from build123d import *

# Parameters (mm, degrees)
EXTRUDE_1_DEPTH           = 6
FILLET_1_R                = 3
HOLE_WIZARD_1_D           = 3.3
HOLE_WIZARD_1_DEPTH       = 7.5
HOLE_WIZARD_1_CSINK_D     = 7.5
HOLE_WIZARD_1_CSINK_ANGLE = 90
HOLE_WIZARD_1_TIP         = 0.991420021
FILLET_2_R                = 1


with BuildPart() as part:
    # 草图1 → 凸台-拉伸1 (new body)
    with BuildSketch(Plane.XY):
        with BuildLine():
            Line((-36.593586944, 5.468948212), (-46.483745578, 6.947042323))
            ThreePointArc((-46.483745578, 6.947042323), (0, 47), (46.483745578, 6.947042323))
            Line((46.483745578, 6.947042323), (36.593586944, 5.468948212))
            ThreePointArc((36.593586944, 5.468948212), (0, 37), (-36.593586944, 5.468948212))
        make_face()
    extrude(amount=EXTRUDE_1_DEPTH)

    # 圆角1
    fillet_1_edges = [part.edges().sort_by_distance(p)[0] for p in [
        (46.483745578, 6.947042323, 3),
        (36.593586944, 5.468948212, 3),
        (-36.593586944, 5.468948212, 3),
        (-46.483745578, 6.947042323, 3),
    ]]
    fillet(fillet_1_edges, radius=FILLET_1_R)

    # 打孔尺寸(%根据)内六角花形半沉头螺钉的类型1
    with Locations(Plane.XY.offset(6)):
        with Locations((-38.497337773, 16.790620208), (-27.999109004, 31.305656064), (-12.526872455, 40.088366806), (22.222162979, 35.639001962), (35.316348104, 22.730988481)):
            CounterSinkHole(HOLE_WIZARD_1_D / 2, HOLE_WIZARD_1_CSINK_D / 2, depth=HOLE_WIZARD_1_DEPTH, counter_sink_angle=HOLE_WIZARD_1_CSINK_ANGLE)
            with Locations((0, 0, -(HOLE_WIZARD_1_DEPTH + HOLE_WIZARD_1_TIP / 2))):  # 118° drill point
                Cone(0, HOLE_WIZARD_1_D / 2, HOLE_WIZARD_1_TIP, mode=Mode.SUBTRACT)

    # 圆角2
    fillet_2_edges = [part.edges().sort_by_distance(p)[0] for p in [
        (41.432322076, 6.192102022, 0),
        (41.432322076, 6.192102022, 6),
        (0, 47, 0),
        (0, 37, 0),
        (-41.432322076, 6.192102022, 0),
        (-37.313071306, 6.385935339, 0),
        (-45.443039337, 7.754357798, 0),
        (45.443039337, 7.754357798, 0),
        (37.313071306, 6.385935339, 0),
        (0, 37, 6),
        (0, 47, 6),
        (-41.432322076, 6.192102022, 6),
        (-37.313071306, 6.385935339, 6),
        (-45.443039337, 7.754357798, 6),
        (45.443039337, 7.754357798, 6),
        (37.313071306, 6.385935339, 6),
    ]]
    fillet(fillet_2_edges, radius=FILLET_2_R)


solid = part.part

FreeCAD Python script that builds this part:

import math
import FreeCAD as App
import Part
import Sketcher
from FreeCAD import Vector
Q = App.Units.Quantity


def edges_at(feature, points):
    """Names of the edges that pass closest to the given points."""
    edges = feature.Shape.Edges
    near = lambda p: min(range(len(edges)), key=lambda i: edges[i].distToShape(Part.Vertex(*p))[0])
    return sorted({f"Edge{near(p) + 1}" for p in points})

doc = App.newDocument("Part")
body = doc.addObject("PartDesign::Body", "Body")

# Sketch on XY plane
sketch1 = body.newObject("Sketcher::SketchObject", "Sketch")
sketch1.AttachmentSupport = (doc.getObject("XY_Plane"), [""])
sketch1.MapMode = "FlatFace"
sketch1.addGeometry([
    Part.LineSegment(Vector(-46, 7, 0), Vector(-37, 5, 0)),
    Part.ArcOfCircle(Part.Circle(Vector(0, 0, 0), Vector(0, 0, 1), 37), math.radians(9), math.radians(171)),
    Part.LineSegment(Vector(37, 5, 0), Vector(46, 7, 0)),
    Part.ArcOfCircle(Part.Circle(Vector(0, 0, 0), Vector(0, 0, 1), 47), math.radians(8), math.radians(172)),
], False)
sketch1.addConstraint([
    Sketcher.Constraint("Coincident", 0, 2, 1, 2),
    Sketcher.Constraint("Coincident", 1, 1, 2, 1),
    Sketcher.Constraint("Coincident", 2, 2, 3, 1),
    Sketcher.Constraint("Coincident", 3, 2, 0, 1),
    Sketcher.Constraint("Coincident", 1, 3, -1, 1),
    Sketcher.Constraint("Coincident", 3, 3, -1, 1),
    Sketcher.Constraint("Horizontal", 0, 2, 1, 1),
    Sketcher.Constraint("Horizontal", 2, 2, 3, 2),
    Sketcher.Constraint("Radius", 1, Q("37 mm")),
    Sketcher.Constraint("Radius", 3, Q("47 mm")),
    Sketcher.Constraint("Angle", 0, Q("-8.5 deg")),
    Sketcher.Constraint("DistanceY", -1, 1, 0, 2, Q("5.468948 mm")),
])
pad1 = body.newObject("PartDesign::Pad", "Pad")
pad1.Profile = sketch1
pad1.Length = 6
doc.recompute()

fillet = body.newObject("PartDesign::Fillet", "Fillet")
fillet.Base = (pad1, edges_at(pad1, [
    (46.484, 6.947, 3),
    (36.594, 5.469, 3),
    (-36.594, 5.469, 3),
    (-46.484, 6.947, 3),
]))
fillet.Radius = 3

# Sketch on XY plane
sketch2 = body.newObject("Sketcher::SketchObject", "Sketch001")
sketch2.AttachmentSupport = (doc.getObject("XY_Plane"), [""])
sketch2.MapMode = "FlatFace"
sketch2.AttachmentOffset = App.Placement(Vector(0, 0, 6), App.Rotation())
sketch2.addGeometry([
    Part.Circle(Vector(-38.5, 16.8, 0), Vector(0, 0, 1), 1.6),  # 0
    Part.Circle(Vector(-28, 31.3, 0), Vector(0, 0, 1), 1.6),  # 1
    Part.Circle(Vector(-12.5, 40.1, 0), Vector(0, 0, 1), 1.6),  # 2
    Part.Circle(Vector(22.2, 35.6, 0), Vector(0, 0, 1), 1.6),  # 3
    Part.Circle(Vector(35.3, 22.7, 0), Vector(0, 0, 1), 1.6),  # 4
], False)
sketch2.addConstraint([
    Sketcher.Constraint("Equal", 0, 1),
    Sketcher.Constraint("Equal", 1, 2),
    Sketcher.Constraint("Equal", 2, 3),
    Sketcher.Constraint("Equal", 3, 4),
    Sketcher.Constraint("Diameter", 0, Q("3.3 mm")),
    Sketcher.Constraint("DistanceY", -1, 1, 3, 3, Q("35.639002 mm")),
    Sketcher.Constraint("DistanceX", 0, 3, 3, 3, Q("60.719501 mm")),
    Sketcher.Constraint("DistanceY", -1, 1, 0, 3, Q("16.79062 mm")),
    Sketcher.Constraint("DistanceX", 1, 3, -1, 1, Q("27.999109 mm")),
    Sketcher.Constraint("DistanceX", -1, 1, 4, 3, Q("35.316348 mm")),
    Sketcher.Constraint("DistanceY", -1, 1, 4, 3, Q("22.730988 mm")),
    Sketcher.Constraint("DistanceX", 0, 3, 1, 3, Q("10.498229 mm")),
    Sketcher.Constraint("DistanceY", 1, 3, 2, 3, Q("8.782711 mm")),
    Sketcher.Constraint("DistanceX", 2, 3, 4, 3, Q("47.843221 mm")),
    Sketcher.Constraint("DistanceY", 4, 3, 2, 3, Q("17.357378 mm")),
])
doc.recompute()
hole = body.newObject("PartDesign::Hole", "Hole")
hole.Profile = sketch2
hole.ThreadType = "None"
hole.Diameter = 3.3
hole.DepthType = "Dimension"
hole.Depth = 7.5
hole.DrillPoint = "Angled"
hole.DrillPointAngle = 118
hole.HoleCutType = "Countersink"
hole.HoleCutDiameter = 7.5
hole.HoleCutCountersinkAngle = 90
doc.recompute()

fillet2 = body.newObject("PartDesign::Fillet", "Fillet001")
fillet2.Base = (hole, edges_at(hole, [
    (41.432, 6.192, 0),
    (41.432, 6.192, 6),
    (0, 47, 0),
    (0, 37, 0),
    (-41.432, 6.192, 0),
    (-37.313, 6.386, 0),
    (-45.443, 7.754, 0),
    (45.443, 7.754, 0),
    (37.313, 6.386, 0),
    (0, 37, 6),
    (0, 47, 6),
    (-41.432, 6.192, 6),
    (-37.313, 6.386, 6),
    (-45.443, 7.754, 6),
    (45.443, 7.754, 6),
    (37.313, 6.386, 6),
]))
fillet2.Radius = 1

doc.recompute()
